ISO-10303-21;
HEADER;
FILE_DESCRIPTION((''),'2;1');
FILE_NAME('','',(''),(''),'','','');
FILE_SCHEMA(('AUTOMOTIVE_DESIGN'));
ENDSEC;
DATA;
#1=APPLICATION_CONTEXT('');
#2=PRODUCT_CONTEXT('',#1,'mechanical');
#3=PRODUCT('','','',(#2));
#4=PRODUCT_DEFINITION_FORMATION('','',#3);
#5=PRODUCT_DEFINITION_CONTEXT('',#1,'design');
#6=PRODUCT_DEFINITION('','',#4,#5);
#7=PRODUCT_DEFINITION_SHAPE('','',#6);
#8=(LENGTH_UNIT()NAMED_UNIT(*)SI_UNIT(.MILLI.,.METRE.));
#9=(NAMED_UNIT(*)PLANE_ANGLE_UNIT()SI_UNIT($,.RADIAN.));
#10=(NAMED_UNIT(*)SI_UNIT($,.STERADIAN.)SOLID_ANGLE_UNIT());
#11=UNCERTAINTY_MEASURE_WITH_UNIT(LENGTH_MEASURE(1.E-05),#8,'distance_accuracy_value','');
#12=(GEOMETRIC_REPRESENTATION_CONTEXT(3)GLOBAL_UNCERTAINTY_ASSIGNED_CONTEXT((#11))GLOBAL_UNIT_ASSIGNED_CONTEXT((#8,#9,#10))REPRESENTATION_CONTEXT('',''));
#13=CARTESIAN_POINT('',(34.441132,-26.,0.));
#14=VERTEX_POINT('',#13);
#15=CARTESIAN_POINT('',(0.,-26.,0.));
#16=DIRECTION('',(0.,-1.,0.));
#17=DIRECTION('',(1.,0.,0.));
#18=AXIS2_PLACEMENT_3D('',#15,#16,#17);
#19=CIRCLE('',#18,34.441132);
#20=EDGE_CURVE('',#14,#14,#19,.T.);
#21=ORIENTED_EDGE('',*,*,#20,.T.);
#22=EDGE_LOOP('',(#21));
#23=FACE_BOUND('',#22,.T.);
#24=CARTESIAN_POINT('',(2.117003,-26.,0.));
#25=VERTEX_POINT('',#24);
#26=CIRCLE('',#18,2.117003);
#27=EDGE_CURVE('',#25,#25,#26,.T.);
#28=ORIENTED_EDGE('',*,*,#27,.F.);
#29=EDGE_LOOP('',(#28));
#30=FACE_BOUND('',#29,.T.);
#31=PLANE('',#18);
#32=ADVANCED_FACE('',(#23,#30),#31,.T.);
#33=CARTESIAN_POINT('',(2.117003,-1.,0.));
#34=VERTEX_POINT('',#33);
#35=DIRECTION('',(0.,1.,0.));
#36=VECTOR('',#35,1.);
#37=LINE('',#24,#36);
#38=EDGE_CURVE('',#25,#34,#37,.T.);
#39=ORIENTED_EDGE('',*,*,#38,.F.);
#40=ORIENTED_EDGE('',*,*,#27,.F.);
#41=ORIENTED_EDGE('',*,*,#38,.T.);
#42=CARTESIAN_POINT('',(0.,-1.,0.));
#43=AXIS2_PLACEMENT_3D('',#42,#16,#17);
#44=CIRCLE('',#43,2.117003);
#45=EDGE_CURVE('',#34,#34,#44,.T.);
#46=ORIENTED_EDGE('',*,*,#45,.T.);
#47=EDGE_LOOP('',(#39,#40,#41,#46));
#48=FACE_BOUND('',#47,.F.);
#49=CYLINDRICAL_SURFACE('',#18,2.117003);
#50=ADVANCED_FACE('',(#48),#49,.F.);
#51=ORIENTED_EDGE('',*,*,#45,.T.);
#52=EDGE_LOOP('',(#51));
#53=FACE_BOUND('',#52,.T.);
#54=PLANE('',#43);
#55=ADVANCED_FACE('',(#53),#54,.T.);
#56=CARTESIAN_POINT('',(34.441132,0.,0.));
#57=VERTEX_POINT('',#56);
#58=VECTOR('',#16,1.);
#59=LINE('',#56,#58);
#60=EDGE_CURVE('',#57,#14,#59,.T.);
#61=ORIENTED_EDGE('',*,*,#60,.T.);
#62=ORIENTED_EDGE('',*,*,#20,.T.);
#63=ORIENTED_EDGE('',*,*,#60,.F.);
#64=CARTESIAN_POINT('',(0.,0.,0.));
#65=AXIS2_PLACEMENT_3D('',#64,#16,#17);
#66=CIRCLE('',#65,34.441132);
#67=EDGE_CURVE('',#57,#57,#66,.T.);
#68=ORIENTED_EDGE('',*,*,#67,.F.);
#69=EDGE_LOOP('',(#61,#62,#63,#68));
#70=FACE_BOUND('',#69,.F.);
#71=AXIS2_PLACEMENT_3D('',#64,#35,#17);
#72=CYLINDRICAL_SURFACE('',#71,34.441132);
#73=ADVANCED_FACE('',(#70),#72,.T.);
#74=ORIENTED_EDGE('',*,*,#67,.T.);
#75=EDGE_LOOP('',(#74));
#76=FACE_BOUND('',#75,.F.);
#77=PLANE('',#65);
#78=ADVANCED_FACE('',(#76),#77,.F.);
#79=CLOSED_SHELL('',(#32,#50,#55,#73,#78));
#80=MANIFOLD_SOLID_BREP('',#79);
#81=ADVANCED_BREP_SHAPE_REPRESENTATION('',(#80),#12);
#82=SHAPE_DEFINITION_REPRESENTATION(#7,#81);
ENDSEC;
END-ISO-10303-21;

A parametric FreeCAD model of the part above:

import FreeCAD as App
import Part
import Sketcher
from FreeCAD import Vector
Q = App.Units.Quantity

doc = App.newDocument("Part")
body = doc.addObject("PartDesign::Body", "Body")

sketch1 = doc.addObject("Sketcher::SketchObject", "Sketch")
body.addObject(sketch1)
sketch1.AttachmentSupport = (doc.XZ_Plane, [""])
sketch1.MapMode = "FlatFace"
sketch1.addGeometry(Part.Circle(Vector(0, 0, 0), Vector(0, 0, 1), 34), False)
sketch1.addConstraint([
    Sketcher.Constraint("Coincident", 0, 3, -1, 1),
    Sketcher.Constraint("Diameter", 0, Q("68.882264 mm")),
])
pad1 = doc.addObject("PartDesign::Pad", "Pad")
body.addObject(pad1)
pad1.Profile = sketch1
pad1.Length = 26

sketch2 = doc.addObject("Sketcher::SketchObject", "Sketch001")
body.addObject(sketch2)
sketch2.AttachmentSupport = (doc.XZ_Plane, [""])
sketch2.MapMode = "FlatFace"
sketch2.AttachmentOffset = App.Placement(Vector(0, 0, 26), App.Rotation())
sketch2.addGeometry(Part.Circle(Vector(0, 0, 0), Vector(0, 0, 1), 2.1), False)
sketch2.addConstraint([
    Sketcher.Constraint("Coincident", 0, 3, -1, 1),
    Sketcher.Constraint("Diameter", 0, Q("4.234006 mm")),
])
pocket1 = doc.addObject("PartDesign::Pocket", "Pocket")
body.addObject(pocket1)
pocket1.Profile = sketch2
pocket1.Length = 25

doc.recompute()
